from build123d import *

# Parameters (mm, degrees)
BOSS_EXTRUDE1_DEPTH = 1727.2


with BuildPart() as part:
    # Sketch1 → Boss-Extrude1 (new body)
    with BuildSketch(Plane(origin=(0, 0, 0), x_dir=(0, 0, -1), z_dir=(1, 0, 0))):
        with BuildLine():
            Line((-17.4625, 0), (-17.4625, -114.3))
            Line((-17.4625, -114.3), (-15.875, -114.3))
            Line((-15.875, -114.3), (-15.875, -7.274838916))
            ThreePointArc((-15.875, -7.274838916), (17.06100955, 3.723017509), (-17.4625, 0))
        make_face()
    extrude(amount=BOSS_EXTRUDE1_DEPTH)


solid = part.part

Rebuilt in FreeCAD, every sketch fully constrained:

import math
import FreeCAD as App
import Part
import Sketcher
from FreeCAD import Vector
Q = App.Units.Quantity

doc = App.newDocument("Part")
body = doc.addObject("PartDesign::Body", "Body")

# Sketch on YZ plane
sketch1 = body.newObject("Sketcher::SketchObject", "Sketch")
sketch1.AttachmentSupport = (doc.getObject("YZ_Plane"), [""])
sketch1.MapMode = "FlatFace"
sketch1.addGeometry(Part.LineSegment(Vector(0, 17.5, 0), Vector(-114.3, 17.5, 0)), False)
sketch1.addGeometry(Part.LineSegment(Vector(-114.3, 17.5, 0), Vector(-114.3, 15.9, 0)), False)
sketch1.addGeometry(Part.LineSegment(Vector(-114.3, 15.9, 0), Vector(-7.3, 15.9, 0)), False)
sketch1.addGeometry(Part.ArcOfCircle(Part.Circle(Vector(0, 0, 0), Vector(0, 0, 1), 17.5), math.radians(115), math.radians(450)), False)
sketch1.addConstraint(Sketcher.Constraint("Coincident", 0, 2, 1, 1))
sketch1.addConstraint(Sketcher.Constraint("Coincident", 1, 2, 2, 1))
sketch1.addConstraint(Sketcher.Constraint("Coincident", 2, 2, 3, 1))
sketch1.addConstraint(Sketcher.Constraint("Tangent", 3, 2, 0, 1))
sketch1.addConstraint(Sketcher.Constraint("Horizontal", 0))
sketch1.addConstraint(Sketcher.Constraint("Vertical", 1))
sketch1.addConstraint(Sketcher.Constraint("Horizontal", 2))
sketch1.addConstraint(Sketcher.Constraint("Coincident", 3, 3, -1, 1))
sketch1.addConstraint(Sketcher.Constraint("DistanceX", 0, 2, 0, 1, Q("4.5 in")))
sketch1.addConstraint(Sketcher.Constraint("Radius", 3, Q("0.6875 in")))
sketch1.addConstraint(Sketcher.Constraint("DistanceY", 1, 2, 1, 1, Q("0.0625 in")))
pad1 = body.newObject("PartDesign::Pad", "Pad")
pad1.Profile = sketch1
pad1.Length = Q("68 in")

doc.recompute()
